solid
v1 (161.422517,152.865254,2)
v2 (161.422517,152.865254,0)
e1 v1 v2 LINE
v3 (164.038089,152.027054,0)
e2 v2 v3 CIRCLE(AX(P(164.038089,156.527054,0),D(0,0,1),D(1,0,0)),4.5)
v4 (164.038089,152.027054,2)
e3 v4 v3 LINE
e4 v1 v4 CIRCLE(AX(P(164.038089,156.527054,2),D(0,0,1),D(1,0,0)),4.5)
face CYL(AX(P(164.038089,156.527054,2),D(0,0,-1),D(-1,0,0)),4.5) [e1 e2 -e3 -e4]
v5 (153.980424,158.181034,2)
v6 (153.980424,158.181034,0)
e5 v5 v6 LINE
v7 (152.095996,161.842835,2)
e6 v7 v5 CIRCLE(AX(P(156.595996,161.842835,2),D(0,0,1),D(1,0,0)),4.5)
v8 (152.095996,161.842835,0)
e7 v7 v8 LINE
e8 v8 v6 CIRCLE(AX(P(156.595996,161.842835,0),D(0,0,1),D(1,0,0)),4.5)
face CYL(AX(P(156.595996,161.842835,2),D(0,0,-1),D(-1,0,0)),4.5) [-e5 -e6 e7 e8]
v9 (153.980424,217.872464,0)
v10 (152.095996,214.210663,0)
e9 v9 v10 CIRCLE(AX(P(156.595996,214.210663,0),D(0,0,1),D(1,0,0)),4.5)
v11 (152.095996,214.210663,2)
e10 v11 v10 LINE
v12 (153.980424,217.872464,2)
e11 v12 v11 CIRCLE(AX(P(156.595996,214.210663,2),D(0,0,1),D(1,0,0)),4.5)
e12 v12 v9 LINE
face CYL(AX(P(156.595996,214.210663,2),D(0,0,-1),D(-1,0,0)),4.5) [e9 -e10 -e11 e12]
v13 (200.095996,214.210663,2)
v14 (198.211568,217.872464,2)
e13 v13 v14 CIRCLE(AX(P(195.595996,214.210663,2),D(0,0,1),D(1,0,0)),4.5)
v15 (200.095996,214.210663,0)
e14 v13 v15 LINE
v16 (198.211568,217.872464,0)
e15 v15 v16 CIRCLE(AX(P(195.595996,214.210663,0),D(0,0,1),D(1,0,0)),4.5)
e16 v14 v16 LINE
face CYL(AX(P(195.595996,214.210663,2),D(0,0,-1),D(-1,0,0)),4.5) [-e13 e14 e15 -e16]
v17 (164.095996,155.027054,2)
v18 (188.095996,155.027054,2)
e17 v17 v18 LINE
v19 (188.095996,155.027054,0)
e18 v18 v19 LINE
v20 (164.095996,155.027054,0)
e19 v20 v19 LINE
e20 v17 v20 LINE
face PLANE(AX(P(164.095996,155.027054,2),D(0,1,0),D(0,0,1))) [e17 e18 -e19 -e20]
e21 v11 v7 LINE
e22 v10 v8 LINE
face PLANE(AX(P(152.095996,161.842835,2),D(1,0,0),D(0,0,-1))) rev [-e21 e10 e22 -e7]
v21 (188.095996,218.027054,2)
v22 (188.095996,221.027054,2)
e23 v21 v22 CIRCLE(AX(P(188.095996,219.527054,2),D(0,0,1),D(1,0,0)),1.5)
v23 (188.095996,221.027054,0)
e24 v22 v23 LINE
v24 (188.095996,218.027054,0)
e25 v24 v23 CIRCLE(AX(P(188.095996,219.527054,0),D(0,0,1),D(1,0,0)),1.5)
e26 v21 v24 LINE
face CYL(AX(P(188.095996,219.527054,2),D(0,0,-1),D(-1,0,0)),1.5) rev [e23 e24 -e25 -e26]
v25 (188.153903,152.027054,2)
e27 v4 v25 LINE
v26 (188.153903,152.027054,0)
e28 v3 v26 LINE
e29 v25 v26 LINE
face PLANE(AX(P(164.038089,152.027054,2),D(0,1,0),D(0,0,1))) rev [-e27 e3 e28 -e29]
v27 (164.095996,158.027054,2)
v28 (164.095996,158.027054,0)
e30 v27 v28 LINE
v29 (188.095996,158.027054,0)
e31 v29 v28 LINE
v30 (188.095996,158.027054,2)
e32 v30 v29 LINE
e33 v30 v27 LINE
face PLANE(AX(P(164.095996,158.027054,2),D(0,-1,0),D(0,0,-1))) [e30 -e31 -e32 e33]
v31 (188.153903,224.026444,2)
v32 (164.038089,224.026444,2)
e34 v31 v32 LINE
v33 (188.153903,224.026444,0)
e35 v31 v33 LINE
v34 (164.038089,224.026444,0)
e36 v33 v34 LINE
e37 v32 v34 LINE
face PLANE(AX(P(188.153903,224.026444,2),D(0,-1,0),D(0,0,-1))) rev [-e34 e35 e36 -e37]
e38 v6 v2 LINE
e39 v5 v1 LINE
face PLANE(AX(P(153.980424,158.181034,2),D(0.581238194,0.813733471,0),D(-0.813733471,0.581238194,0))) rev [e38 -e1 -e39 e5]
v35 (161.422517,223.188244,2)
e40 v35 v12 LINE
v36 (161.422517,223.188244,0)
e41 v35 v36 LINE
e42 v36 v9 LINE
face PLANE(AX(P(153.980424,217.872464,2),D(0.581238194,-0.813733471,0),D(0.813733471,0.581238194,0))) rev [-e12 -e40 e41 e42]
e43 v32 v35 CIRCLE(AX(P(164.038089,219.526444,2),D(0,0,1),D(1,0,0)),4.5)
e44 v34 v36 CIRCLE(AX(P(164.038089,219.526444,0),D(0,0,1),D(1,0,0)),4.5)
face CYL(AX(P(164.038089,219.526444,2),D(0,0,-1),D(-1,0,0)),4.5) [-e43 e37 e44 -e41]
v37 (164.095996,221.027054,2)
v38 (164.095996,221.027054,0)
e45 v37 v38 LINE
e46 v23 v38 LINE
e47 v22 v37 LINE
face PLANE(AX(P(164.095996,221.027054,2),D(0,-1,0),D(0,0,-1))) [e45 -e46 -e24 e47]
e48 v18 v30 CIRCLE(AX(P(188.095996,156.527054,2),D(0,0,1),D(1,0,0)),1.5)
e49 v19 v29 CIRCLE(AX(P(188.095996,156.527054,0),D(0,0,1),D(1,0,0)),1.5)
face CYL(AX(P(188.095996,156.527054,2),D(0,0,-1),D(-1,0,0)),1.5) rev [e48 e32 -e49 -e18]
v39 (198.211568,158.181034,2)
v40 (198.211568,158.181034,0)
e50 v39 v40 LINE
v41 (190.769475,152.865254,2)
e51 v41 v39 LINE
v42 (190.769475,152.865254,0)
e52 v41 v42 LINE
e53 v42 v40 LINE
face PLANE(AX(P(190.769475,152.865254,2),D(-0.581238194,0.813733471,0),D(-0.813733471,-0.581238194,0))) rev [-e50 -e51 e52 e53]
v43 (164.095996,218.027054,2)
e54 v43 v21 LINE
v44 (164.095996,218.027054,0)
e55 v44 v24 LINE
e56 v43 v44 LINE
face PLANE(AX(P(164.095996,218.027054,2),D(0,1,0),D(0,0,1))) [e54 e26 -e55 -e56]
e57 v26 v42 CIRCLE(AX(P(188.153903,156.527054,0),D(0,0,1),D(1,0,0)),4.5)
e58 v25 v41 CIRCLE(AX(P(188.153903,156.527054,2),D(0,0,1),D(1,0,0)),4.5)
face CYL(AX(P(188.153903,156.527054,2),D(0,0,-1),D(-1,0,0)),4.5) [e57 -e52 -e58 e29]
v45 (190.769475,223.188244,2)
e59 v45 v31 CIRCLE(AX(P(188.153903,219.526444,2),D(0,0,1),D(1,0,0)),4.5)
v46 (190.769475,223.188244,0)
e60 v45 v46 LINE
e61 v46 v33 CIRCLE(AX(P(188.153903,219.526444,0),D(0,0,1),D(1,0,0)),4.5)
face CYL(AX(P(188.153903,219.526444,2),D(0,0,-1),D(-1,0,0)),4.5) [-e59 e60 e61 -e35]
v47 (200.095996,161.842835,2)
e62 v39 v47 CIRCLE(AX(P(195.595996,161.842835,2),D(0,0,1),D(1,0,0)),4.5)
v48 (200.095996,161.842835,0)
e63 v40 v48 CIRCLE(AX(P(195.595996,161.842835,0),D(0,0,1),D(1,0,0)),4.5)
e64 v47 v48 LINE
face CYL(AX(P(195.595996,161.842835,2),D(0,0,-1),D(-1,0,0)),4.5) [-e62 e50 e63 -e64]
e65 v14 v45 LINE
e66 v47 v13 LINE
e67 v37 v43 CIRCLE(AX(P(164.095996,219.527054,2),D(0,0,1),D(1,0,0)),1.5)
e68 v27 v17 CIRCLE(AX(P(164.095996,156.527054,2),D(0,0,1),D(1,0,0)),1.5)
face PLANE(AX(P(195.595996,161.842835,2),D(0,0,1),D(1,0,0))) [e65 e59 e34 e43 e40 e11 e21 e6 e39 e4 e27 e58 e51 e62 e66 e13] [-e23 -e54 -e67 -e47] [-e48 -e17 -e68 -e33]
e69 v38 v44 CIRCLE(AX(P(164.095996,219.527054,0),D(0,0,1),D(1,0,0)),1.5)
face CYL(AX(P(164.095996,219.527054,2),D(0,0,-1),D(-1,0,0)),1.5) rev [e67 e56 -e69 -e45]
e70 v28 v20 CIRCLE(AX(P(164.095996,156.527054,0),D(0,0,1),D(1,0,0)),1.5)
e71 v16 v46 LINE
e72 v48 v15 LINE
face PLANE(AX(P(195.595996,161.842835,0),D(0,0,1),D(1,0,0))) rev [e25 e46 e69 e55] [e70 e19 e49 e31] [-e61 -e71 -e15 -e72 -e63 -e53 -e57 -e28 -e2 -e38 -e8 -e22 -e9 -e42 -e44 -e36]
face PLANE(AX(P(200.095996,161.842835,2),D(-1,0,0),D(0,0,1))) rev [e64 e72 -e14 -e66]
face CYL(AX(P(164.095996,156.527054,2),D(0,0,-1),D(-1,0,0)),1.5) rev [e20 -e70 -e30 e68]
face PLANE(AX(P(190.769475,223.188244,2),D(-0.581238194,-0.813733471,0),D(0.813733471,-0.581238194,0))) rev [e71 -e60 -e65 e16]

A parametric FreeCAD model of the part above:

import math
import FreeCAD as App
import Part
import Sketcher

V = App.Vector

doc = App.newDocument("Part")
body = doc.addObject("PartDesign::Body", "Body")

# Sketch on XY plane
sketch1 = doc.addObject("Sketcher::SketchObject", "Sketch")
body.addObject(sketch1)
sketch1.AttachmentSupport = (doc.XY_Plane, [""])
sketch1.MapMode = "FlatFace"
sketch1.addGeometry([
    Part.LineSegment(V(200.1, 161.8, 0), V(200.1, 214.2, 0)),  # 0
    Part.ArcOfCircle(Part.Circle(V(195.6, 214.2, 0), V(0, 0, 1), 4.5), math.radians(0), math.radians(54)),  # 1
    Part.LineSegment(V(198.2, 217.9, 0), V(190.8, 223.2, 0)),  # 2
    Part.ArcOfCircle(Part.Circle(V(188.2, 219.5, 0), V(0, 0, 1), 4.5), math.radians(54), math.radians(90)),  # 3
    Part.LineSegment(V(188.2, 224, 0), V(164, 224, 0)),  # 4
    Part.ArcOfCircle(Part.Circle(V(164, 219.5, 0), V(0, 0, 1), 4.5), math.radians(90), math.radians(126)),  # 5
    Part.LineSegment(V(161.4, 223.2, 0), V(154, 217.9, 0)),  # 6
    Part.ArcOfCircle(Part.Circle(V(156.6, 214.2, 0), V(0, 0, 1), 4.5), math.radians(126), math.radians(180)),  # 7
    Part.LineSegment(V(152.1, 214.2, 0), V(152.1, 161.8, 0)),  # 8
    Part.ArcOfCircle(Part.Circle(V(156.6, 161.8, 0), V(0, 0, 1), 4.5), math.radians(180), math.radians(234)),  # 9
    Part.LineSegment(V(154, 158.2, 0), V(161.4, 152.9, 0)),  # 10
    Part.ArcOfCircle(Part.Circle(V(164, 156.5, 0), V(0, 0, 1), 4.5), math.radians(-126), math.radians(-90)),  # 11
    Part.LineSegment(V(164, 152, 0), V(188.2, 152, 0)),  # 12
    Part.ArcOfCircle(Part.Circle(V(188.2, 156.5, 0), V(0, 0, 1), 4.5), math.radians(-90), math.radians(-54)),  # 13
    Part.LineSegment(V(190.8, 152.9, 0), V(198.2, 158.2, 0)),  # 14
    Part.ArcOfCircle(Part.Circle(V(195.6, 161.8, 0), V(0, 0, 1), 4.5), math.radians(-54), math.radians(0)),  # 15
    Part.ArcOfCircle(Part.Circle(V(164.1, 156.5, 0), V(0, 0, 1), 1.5), math.radians(90), math.radians(270)),  # 16
    Part.LineSegment(V(164.1, 158, 0), V(188.1, 158, 0)),  # 17
    Part.ArcOfCircle(Part.Circle(V(188.1, 156.5, 0), V(0, 0, 1), 1.5), math.radians(-90), math.radians(90)),  # 18
    Part.LineSegment(V(188.1, 155, 0), V(164.1, 155, 0)),  # 19
    Part.ArcOfCircle(Part.Circle(V(164.1, 219.5, 0), V(0, 0, 1), 1.5), math.radians(90), math.radians(270)),  # 20
    Part.LineSegment(V(164.1, 221, 0), V(188.1, 221, 0)),  # 21
    Part.ArcOfCircle(Part.Circle(V(188.1, 219.5, 0), V(0, 0, 1), 1.5), math.radians(-90), math.radians(90)),  # 22
    Part.LineSegment(V(188.1, 218, 0), V(164.1, 218, 0)),  # 23
], False)
sketch1.addConstraint([
    Sketcher.Constraint("Tangent", 0, 2, 1, 1),
    Sketcher.Constraint("Tangent", 1, 2, 2, 1),
    Sketcher.Constraint("Tangent", 2, 2, 3, 1),
    Sketcher.Constraint("Tangent", 3, 2, 4, 1),
    Sketcher.Constraint("Tangent", 4, 2, 5, 1),
    Sketcher.Constraint("Tangent", 5, 2, 6, 1),
    Sketcher.Constraint("Tangent", 6, 2, 7, 1),
    Sketcher.Constraint("Tangent", 7, 2, 8, 1),
    Sketcher.Constraint("Tangent", 8, 2, 9, 1),
    Sketcher.Constraint("Tangent", 9, 2, 10, 1),
    Sketcher.Constraint("Tangent", 10, 2, 11, 1),
    Sketcher.Constraint("Tangent", 11, 2, 12, 1),
    Sketcher.Constraint("Tangent", 12, 2, 13, 1),
    Sketcher.Constraint("Tangent", 13, 2, 14, 1),
    Sketcher.Constraint("Tangent", 14, 2, 15, 1),
    Sketcher.Constraint("Tangent", 15, 2, 0, 1),
    Sketcher.Constraint("Tangent", 16, 1, 17, 1),
    Sketcher.Constraint("Tangent", 17, 2, 18, 2),
    Sketcher.Constraint("Tangent", 18, 1, 19, 1),
    Sketcher.Constraint("Tangent", 19, 2, 16, 2),
    Sketcher.Constraint("Tangent", 20, 1, 21, 1),
    Sketcher.Constraint("Tangent", 21, 2, 22, 2),
    Sketcher.Constraint("Tangent", 22, 1, 23, 1),
    Sketcher.Constraint("Tangent", 23, 2, 20, 2),
    Sketcher.Constraint("Vertical", 0),
    Sketcher.Constraint("Horizontal", 4),
    Sketcher.Constraint("Vertical", 8),
    Sketcher.Constraint("Horizontal", 12),
    Sketcher.Constraint("Horizontal", 17),
    Sketcher.Constraint("Horizontal", 19),
    Sketcher.Constraint("Horizontal", 21),
    Sketcher.Constraint("Horizontal", 23),
    Sketcher.Constraint("Equal", 1, 3),
    Sketcher.Constraint("Equal", 3, 5),
    Sketcher.Constraint("Equal", 5, 7),
    Sketcher.Constraint("Equal", 7, 9),
    Sketcher.Constraint("Equal", 9, 11),
    Sketcher.Constraint("Equal", 11, 13),
    Sketcher.Constraint("Equal", 13, 15),
    Sketcher.Constraint("Equal", 18, 20),
    Sketcher.Constraint("Parallel", 2, 10),
    Sketcher.Constraint("Parallel", 6, 14),
    Sketcher.Constraint("Horizontal", 1, 3, 7, 3),
    Sketcher.Constraint("Horizontal", 9, 3, 15, 3),
    Sketcher.Constraint("Horizontal", 13, 3, 16, 3),
    Sketcher.Constraint("Horizontal", 2, 2, 5, 2),
    Sketcher.Constraint("Vertical", 5, 3, 11, 3),
    Sketcher.Constraint("Vertical", 16, 3, 20, 3),
    Sketcher.Constraint("Vertical", 18, 3, 22, 3),
    Sketcher.Constraint("Radius", 1, 4.5),
    Sketcher.Constraint("Radius", 16, 1.5),
    Sketcher.Constraint("DistanceX", 17, 1, 17, 2, 24.0),
    Sketcher.Constraint("DistanceX", 7, 3, 1, 3, 39.0),
    Sketcher.Constraint("DistanceX", 22, 3, 0, 2, 12.0),
    Sketcher.Constraint("DistanceY", 0, 1, 0, 2, 52.367829),
    Sketcher.Constraint("DistanceY", 0, 2, 1, 2, 3.661801),
    Sketcher.Constraint("DistanceX", 4, 2, 4, 1, 24.115815),
    Sketcher.Constraint("DistanceX", -1, 1, 5, 3, 164.038089),
    Sketcher.Constraint("DistanceY", 5, 3, 20, 3, 0.00061),
    Sketcher.Constraint("DistanceY", -1, 1, 1, 3, 214.210663),
])
pad1 = doc.addObject("PartDesign::Pad", "Pad")
body.addObject(pad1)
pad1.Profile = sketch1
pad1.Length = 2

doc.recompute()
